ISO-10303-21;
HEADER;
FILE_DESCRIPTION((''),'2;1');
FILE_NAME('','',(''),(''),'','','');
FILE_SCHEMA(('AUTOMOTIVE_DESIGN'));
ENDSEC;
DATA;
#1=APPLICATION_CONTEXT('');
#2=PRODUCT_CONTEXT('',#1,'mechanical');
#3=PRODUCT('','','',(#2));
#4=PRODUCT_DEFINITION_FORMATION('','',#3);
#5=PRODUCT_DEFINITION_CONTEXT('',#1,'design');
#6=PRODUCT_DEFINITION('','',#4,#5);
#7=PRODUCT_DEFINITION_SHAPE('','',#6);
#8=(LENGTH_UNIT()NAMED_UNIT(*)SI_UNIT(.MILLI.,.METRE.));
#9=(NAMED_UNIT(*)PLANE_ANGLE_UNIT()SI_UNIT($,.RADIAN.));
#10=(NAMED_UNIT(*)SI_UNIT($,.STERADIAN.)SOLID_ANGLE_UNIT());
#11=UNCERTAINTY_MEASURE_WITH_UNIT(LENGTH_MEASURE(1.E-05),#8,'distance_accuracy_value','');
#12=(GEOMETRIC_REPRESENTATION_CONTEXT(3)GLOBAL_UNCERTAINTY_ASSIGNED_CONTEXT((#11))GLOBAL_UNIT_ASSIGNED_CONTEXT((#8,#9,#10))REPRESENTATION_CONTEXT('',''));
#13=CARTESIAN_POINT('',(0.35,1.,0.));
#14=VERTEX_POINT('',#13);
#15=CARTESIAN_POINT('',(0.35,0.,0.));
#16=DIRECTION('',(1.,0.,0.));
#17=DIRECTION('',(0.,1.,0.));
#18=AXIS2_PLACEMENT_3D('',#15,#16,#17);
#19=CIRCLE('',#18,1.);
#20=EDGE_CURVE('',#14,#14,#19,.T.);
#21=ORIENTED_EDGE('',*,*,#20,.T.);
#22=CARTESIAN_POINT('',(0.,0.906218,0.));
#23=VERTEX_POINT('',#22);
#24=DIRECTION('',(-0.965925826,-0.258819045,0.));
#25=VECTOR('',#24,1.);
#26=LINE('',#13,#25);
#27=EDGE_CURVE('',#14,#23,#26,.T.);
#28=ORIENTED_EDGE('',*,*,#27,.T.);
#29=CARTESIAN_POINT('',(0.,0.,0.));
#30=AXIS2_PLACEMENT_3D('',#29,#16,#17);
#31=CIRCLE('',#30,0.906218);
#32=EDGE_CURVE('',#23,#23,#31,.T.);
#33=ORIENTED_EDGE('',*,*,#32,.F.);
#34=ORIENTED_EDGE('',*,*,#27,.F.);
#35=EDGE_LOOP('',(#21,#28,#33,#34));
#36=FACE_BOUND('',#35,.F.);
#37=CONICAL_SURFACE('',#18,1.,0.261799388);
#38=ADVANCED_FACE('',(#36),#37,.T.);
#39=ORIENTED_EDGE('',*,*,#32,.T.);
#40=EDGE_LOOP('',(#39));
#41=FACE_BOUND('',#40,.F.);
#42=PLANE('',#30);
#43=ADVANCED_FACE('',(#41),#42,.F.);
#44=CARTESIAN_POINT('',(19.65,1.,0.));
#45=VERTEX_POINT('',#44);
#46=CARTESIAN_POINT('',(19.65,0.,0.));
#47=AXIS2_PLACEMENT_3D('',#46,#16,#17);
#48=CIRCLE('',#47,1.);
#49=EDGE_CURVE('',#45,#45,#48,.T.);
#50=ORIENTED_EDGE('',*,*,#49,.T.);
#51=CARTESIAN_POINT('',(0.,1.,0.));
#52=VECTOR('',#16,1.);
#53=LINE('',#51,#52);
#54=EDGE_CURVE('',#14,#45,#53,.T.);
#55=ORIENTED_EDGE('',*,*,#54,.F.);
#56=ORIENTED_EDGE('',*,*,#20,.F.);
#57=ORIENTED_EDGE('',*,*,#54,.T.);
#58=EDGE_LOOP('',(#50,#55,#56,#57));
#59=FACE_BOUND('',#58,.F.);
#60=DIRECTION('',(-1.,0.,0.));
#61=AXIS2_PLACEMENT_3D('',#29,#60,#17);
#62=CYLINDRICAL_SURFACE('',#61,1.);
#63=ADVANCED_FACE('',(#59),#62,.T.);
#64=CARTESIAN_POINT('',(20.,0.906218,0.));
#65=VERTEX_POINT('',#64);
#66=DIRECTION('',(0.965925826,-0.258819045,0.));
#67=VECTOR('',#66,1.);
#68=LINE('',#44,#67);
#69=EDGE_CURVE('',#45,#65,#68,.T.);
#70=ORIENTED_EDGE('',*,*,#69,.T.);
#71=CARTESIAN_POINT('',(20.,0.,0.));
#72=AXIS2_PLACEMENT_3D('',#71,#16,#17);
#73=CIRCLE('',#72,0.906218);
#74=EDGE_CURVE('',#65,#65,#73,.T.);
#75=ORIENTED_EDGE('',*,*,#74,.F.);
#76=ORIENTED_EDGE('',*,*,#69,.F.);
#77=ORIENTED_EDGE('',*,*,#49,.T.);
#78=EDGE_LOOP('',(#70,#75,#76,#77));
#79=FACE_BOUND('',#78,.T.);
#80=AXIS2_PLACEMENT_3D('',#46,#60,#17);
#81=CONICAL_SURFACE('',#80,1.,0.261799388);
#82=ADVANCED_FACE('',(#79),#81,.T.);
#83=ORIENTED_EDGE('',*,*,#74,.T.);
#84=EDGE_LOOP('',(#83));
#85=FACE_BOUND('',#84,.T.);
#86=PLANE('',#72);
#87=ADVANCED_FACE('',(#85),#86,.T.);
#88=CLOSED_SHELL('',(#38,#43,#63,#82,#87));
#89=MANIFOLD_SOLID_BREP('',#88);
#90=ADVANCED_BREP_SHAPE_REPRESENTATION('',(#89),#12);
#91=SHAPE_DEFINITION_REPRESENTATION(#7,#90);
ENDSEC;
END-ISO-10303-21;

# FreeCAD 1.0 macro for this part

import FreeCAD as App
import Part
import Sketcher
from FreeCAD import Vector


def edges_at(feature, points):
    """Names of the edges that pass closest to the given points."""
    edges = feature.Shape.Edges
    near = lambda p: min(range(len(edges)), key=lambda i: edges[i].distToShape(Part.Vertex(*p))[0])
    return sorted({f"Edge{near(p) + 1}" for p in points})

doc = App.newDocument("Part")
body = doc.addObject("PartDesign::Body", "Body")

# Sketch on YZ plane
sketch1 = body.newObject("Sketcher::SketchObject", "Sketch")
sketch1.AttachmentSupport = (doc.getObject("YZ_Plane"), [""])
sketch1.MapMode = "FlatFace"
sketch1.addGeometry(Part.Circle(Vector(0, 0, 0), Vector(0, 0, 1), 1), False)
sketch1.addConstraint([
    Sketcher.Constraint("Coincident", 0, 3, -1, 1),
    Sketcher.Constraint("Diameter", 0, 2.0),
])
pad1 = body.newObject("PartDesign::Pad", "Pad")
pad1.Profile = sketch1
pad1.Length = 20
doc.recompute()

chamfer = body.newObject("PartDesign::Chamfer", "Chamfer")
chamfer.Base = (pad1, edges_at(pad1, [(0, -1, 0)]))
chamfer.ChamferType = "Distance and Angle"
chamfer.Size = 0.35
chamfer.Angle = 15
doc.recompute()

chamfer2 = body.newObject("PartDesign::Chamfer", "Chamfer001")
chamfer2.Base = (chamfer, edges_at(chamfer, [(20, -1, 0)]))
chamfer2.ChamferType = "Distance and Angle"
chamfer2.Size = 0.35
chamfer2.Angle = 15

doc.recompute()
